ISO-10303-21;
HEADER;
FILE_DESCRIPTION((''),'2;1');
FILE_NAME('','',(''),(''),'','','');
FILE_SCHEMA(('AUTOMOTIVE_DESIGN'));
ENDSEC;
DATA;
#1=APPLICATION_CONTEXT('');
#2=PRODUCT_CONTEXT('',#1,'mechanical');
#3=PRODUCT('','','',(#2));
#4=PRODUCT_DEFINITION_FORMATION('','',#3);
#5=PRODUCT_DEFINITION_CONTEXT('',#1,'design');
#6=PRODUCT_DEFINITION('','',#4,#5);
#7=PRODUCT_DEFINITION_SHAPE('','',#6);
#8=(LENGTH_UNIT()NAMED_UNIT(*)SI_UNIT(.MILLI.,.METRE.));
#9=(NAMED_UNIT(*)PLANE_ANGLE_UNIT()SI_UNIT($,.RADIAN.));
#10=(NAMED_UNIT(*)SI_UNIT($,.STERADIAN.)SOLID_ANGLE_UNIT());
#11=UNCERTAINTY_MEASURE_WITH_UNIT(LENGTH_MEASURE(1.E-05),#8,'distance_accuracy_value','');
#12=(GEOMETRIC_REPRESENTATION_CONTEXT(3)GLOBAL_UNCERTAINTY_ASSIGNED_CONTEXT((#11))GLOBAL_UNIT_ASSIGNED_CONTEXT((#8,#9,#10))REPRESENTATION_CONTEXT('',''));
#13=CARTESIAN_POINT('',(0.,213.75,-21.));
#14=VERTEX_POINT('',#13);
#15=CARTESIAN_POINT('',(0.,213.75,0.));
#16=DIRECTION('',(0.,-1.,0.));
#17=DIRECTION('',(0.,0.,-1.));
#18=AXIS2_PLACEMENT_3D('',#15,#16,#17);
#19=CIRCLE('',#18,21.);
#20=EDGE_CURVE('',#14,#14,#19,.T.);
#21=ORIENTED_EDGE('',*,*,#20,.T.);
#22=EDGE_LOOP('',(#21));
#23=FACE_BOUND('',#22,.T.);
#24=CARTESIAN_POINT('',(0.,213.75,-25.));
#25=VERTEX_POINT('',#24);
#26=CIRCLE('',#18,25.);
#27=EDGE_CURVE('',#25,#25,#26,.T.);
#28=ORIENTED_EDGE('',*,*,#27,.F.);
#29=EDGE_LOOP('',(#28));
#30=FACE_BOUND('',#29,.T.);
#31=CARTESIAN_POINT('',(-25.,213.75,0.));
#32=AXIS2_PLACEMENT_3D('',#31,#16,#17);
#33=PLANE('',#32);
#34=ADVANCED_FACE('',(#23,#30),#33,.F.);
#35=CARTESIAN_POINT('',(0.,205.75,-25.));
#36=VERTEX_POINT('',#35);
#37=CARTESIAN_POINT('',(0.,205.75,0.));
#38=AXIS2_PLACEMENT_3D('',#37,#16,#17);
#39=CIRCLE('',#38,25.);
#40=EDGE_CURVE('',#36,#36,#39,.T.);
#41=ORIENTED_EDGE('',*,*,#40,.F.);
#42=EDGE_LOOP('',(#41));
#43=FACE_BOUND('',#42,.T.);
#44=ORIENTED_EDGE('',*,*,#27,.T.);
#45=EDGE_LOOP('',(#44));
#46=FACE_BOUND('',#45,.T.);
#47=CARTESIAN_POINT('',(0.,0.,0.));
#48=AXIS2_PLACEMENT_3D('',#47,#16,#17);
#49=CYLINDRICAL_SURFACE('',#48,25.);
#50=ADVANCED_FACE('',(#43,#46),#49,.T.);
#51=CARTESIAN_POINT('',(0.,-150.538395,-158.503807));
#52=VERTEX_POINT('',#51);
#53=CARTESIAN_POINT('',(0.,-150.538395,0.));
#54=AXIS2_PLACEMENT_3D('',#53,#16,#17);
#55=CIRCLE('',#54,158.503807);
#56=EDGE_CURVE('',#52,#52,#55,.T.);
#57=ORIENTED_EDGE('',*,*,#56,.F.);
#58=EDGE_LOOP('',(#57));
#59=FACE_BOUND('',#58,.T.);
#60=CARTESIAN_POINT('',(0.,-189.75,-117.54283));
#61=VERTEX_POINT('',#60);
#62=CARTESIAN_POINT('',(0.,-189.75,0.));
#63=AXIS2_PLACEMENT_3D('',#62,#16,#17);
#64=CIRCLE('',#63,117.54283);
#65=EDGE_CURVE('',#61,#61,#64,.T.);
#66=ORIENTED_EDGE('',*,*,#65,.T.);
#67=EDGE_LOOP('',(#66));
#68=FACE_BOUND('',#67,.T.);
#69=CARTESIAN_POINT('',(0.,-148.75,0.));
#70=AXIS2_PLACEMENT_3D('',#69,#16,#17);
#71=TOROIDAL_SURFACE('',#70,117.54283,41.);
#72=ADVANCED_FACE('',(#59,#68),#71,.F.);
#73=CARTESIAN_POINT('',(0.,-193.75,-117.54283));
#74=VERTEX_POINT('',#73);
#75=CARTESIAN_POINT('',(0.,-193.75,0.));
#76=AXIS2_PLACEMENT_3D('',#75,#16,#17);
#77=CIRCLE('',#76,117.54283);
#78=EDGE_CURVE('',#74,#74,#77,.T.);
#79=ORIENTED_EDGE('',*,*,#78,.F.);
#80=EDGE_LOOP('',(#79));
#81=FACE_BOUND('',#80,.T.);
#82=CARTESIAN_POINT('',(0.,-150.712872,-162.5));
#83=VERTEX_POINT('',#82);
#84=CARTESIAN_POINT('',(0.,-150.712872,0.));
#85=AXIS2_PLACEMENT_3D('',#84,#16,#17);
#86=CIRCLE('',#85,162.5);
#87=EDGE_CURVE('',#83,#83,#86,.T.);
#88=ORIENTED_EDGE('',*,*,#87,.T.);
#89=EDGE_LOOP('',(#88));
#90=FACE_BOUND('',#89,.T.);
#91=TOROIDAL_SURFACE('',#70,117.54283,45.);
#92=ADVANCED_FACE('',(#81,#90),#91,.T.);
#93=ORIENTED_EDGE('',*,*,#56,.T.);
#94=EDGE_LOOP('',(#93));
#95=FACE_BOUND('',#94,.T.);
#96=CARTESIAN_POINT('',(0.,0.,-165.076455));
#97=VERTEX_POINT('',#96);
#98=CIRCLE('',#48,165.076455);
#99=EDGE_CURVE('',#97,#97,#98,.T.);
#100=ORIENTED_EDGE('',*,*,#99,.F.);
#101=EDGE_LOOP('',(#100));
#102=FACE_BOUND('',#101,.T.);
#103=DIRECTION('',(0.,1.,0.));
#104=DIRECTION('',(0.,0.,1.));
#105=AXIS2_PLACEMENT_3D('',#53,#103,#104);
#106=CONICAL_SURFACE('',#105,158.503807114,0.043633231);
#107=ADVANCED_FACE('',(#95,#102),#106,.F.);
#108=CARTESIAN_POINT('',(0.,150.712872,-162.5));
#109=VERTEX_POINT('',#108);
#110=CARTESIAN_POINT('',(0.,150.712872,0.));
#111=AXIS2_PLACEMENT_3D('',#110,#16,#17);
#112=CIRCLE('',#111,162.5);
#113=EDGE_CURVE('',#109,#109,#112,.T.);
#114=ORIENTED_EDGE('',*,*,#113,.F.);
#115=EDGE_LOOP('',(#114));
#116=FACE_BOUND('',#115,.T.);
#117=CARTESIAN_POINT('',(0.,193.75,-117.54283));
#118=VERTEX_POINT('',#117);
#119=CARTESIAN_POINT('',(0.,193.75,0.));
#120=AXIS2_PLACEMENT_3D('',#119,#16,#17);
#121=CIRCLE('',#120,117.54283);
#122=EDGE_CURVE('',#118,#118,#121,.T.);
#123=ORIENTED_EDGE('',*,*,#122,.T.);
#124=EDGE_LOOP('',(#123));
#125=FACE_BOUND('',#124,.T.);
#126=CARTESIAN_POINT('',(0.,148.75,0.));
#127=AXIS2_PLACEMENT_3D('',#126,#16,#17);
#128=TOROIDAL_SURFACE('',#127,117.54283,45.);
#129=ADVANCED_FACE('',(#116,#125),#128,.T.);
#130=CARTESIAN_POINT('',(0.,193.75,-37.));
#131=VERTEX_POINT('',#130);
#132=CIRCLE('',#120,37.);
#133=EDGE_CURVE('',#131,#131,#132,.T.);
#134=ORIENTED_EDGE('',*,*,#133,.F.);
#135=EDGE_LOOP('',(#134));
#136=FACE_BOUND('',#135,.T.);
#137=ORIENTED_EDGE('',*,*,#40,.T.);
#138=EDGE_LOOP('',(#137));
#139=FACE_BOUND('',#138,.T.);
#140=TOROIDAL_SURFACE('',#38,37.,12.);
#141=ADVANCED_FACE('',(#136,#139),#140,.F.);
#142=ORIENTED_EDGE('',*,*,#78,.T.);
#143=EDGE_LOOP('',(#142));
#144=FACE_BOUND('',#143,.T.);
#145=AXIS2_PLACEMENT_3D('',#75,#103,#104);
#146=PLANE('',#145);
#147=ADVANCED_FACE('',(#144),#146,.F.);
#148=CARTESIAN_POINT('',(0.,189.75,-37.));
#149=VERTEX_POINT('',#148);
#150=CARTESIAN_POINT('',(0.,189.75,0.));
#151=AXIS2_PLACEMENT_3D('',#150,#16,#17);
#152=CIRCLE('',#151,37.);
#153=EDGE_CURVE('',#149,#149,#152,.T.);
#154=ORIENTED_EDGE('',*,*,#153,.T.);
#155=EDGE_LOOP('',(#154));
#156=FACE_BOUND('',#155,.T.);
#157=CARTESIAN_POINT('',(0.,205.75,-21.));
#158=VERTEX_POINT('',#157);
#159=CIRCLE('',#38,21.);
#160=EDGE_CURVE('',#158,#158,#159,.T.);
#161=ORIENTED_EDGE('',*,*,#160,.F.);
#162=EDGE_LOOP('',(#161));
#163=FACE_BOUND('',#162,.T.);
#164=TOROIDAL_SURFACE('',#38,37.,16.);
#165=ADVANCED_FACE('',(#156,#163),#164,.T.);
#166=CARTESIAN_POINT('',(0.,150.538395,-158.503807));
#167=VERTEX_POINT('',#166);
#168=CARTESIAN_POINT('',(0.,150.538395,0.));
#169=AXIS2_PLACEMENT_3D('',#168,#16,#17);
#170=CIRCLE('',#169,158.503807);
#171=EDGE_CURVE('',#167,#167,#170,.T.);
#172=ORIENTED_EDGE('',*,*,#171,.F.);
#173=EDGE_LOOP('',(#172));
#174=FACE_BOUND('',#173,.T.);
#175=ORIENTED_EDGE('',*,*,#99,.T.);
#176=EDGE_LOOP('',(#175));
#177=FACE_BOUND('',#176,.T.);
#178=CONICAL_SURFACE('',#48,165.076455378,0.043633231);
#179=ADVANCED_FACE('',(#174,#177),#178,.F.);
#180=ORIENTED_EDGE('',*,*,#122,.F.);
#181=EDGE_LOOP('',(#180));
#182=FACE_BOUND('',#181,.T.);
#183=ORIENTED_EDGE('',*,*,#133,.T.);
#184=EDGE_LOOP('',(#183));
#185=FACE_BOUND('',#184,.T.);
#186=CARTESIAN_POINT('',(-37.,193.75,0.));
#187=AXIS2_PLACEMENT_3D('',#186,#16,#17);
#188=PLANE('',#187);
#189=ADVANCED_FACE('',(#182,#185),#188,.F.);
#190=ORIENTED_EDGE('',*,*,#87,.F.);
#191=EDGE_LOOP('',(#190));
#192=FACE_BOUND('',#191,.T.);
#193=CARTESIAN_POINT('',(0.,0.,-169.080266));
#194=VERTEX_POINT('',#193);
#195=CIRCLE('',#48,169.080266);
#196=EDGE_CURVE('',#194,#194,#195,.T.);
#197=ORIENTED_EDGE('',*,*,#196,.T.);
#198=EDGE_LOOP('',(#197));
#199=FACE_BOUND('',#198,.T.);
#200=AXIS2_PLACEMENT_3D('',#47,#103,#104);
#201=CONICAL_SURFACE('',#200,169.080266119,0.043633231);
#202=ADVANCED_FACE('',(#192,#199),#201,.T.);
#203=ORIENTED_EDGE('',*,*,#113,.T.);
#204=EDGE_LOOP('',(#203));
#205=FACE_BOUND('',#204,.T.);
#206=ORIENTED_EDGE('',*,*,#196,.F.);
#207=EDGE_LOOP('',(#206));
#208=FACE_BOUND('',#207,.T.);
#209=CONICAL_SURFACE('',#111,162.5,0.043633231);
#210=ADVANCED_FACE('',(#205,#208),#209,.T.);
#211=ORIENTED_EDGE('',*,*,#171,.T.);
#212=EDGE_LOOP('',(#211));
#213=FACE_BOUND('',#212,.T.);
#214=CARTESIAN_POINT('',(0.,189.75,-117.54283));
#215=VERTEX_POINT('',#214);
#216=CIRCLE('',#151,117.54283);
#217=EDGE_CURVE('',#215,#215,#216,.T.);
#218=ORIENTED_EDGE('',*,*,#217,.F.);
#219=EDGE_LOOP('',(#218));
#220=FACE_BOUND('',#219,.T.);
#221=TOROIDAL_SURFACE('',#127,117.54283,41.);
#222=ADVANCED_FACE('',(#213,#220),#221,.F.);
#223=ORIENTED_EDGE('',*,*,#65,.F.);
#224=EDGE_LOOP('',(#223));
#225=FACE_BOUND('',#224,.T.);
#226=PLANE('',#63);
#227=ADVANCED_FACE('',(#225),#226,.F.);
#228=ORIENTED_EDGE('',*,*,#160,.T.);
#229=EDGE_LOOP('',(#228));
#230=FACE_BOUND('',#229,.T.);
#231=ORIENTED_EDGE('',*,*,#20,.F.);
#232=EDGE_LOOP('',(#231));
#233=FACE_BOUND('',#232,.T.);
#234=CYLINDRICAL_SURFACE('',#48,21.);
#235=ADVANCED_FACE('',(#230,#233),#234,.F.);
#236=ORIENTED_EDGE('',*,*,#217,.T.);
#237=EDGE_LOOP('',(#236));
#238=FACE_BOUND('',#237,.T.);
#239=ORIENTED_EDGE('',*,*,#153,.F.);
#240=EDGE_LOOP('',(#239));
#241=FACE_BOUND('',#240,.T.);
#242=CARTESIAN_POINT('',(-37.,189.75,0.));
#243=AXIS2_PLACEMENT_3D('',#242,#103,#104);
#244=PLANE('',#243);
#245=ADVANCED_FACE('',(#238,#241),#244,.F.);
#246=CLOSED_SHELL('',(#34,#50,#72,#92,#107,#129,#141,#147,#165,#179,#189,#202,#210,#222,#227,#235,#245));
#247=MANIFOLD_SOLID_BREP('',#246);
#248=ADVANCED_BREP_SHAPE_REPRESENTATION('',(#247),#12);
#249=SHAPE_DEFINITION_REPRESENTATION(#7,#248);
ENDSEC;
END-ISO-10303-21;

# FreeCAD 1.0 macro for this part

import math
import FreeCAD as App
import Part
import Sketcher
Q = App.Units.Quantity

doc = App.newDocument("Part")
params = doc.addObject("Spreadsheet::Sheet", "Params")
for row, (alias, value) in enumerate([
    ("sketch1_radius", "41 mm"),
    ("sketch1_radius2", "16 mm"),
    ("sketch1_radius3", "12 mm"),
    ("sketch1_height", "8 mm"),
    ("revolution_angle", "360 deg"),
], start=1):
    params.set(f"A{row}", alias)
    params.set(f"B{row}", "=" + value)
    params.setAlias(f"B{row}", alias)

body = doc.addObject("PartDesign::Body", "Body")

# Sketch on XY plane
sketch1 = body.newObject("Sketcher::SketchObject", "Sketch")
sketch1.AttachmentSupport = (doc.getObject("XY_Plane"), [""])
sketch1.MapMode = "FlatFace"
sketch1.addGeometry([
    Part.LineSegment(App.Vector(-117.5, -193.8, 0), App.Vector(0, -193.8, 0)),  # 0
    Part.LineSegment(App.Vector(0, -193.8, 0), App.Vector(0, -189.8, 0)),  # 1
    Part.LineSegment(App.Vector(0, -189.8, 0), App.Vector(-117.5, -189.8, 0)),  # 2
    Part.ArcOfCircle(Part.Circle(App.Vector(-117.5, -148.7, 0), App.Vector(0, 0, 1), 41), math.radians(-177), math.radians(-90)),  # 3
    Part.LineSegment(App.Vector(-158.5, -150.5, 0), App.Vector(-165.1, 0, 0)),  # 4
    Part.LineSegment(App.Vector(-165.1, 0, 0), App.Vector(-158.5, 150.5, 0)),  # 5
    Part.ArcOfCircle(Part.Circle(App.Vector(-117.5, 148.7, 0), App.Vector(0, 0, 1), 41), math.radians(90), math.radians(177)),  # 6
    Part.LineSegment(App.Vector(-117.5, 189.8, 0), App.Vector(-37, 189.8, 0)),  # 7
    Part.ArcOfCircle(Part.Circle(App.Vector(-37, 205.8, 0), App.Vector(0, 0, 1), 16), math.radians(-90), math.radians(0)),  # 8
    Part.LineSegment(App.Vector(-21, 205.8, 0), App.Vector(-21, 213.8, 0)),  # 9
    Part.LineSegment(App.Vector(-21, 213.8, 0), App.Vector(-25, 213.8, 0)),  # 10
    Part.LineSegment(App.Vector(-25, 213.8, 0), App.Vector(-25, 205.8, 0)),  # 11
    Part.ArcOfCircle(Part.Circle(App.Vector(-37, 205.8, 0), App.Vector(0, 0, 1), 12), math.radians(-90), math.radians(0)),  # 12
    Part.LineSegment(App.Vector(-37, 193.8, 0), App.Vector(-117.5, 193.8, 0)),  # 13
    Part.ArcOfCircle(Part.Circle(App.Vector(-117.5, 148.8, 0), App.Vector(0, 0, 1), 45), math.radians(90), math.radians(178)),  # 14
    Part.LineSegment(App.Vector(-162.5, 150.7, 0), App.Vector(-169.1, 0, 0)),  # 15
    Part.LineSegment(App.Vector(-169.1, 0, 0), App.Vector(-162.5, -150.7, 0)),  # 16
    Part.ArcOfCircle(Part.Circle(App.Vector(-117.5, -148.8, 0), App.Vector(0, 0, 1), 45), math.radians(-178), math.radians(-90)),  # 17
], False)
sketch1.addConstraint([
    Sketcher.Constraint("Coincident", 0, 2, 1, 1),
    Sketcher.Constraint("Coincident", 1, 2, 2, 1),
    Sketcher.Constraint("Tangent", 2, 2, 3, 2),
    Sketcher.Constraint("Tangent", 3, 1, 4, 1),
    Sketcher.Constraint("Coincident", 4, 2, 5, 1),
    Sketcher.Constraint("Tangent", 5, 2, 6, 2),
    Sketcher.Constraint("Tangent", 6, 1, 7, 1),
    Sketcher.Constraint("Tangent", 7, 2, 8, 1),
    Sketcher.Constraint("Tangent", 8, 2, 9, 1),
    Sketcher.Constraint("Coincident", 9, 2, 10, 1),
    Sketcher.Constraint("Coincident", 10, 2, 11, 1),
    Sketcher.Constraint("Tangent", 11, 2, 12, 2),
    Sketcher.Constraint("Tangent", 12, 1, 13, 1),
    Sketcher.Constraint("Tangent", 13, 2, 14, 1),
    Sketcher.Constraint("Tangent", 14, 2, 15, 1),
    Sketcher.Constraint("Coincident", 15, 2, 16, 1),
    Sketcher.Constraint("Tangent", 16, 2, 17, 1),
    Sketcher.Constraint("Tangent", 17, 2, 0, 1),
    Sketcher.Constraint("Horizontal", 0),
    Sketcher.Constraint("Vertical", 1),
    Sketcher.Constraint("Horizontal", 2),
    Sketcher.Constraint("Horizontal", 7),
    Sketcher.Constraint("Vertical", 9),
    Sketcher.Constraint("Horizontal", 10),
    Sketcher.Constraint("Vertical", 11),
    Sketcher.Constraint("Horizontal", 13),
    Sketcher.Constraint("Coincident", 12, 3, 8, 3),
    Sketcher.Constraint("Coincident", 14, 3, 6, 3),
    Sketcher.Constraint("Coincident", 17, 3, 3, 3),
    Sketcher.Constraint("Equal", 3, 6),
    Sketcher.Constraint("Equal", 14, 17),
    Sketcher.Constraint("Symmetric", 3, 3, 6, 3, -1),
    Sketcher.Constraint("PointOnObject", 0, 2, -2),
    Sketcher.Constraint("PointOnObject", 4, 2, -1),
    Sketcher.Constraint("PointOnObject", 15, 2, -1),
    Sketcher.Constraint("Parallel", 5, 15),
    Sketcher.Constraint("Radius", 3, 41.0),
    Sketcher.Constraint("Radius", 8, 16.0),
    Sketcher.Constraint("Radius", 12, 12.0),
    Sketcher.Constraint("DistanceY", 9, 1, 9, 2, 8.0),
    Sketcher.Constraint("DistanceX", 8, 3, -1, 1, 37.0),
    Sketcher.Constraint("Angle", 4, Q("92.5 deg")),
    Sketcher.Constraint("DistanceX", 14, 2, -1, 1, 162.5),
    Sketcher.Constraint("DistanceY", 3, 3, 6, 3, 297.5),
])
sketch1.setExpression("Constraints[36]", "Params.sketch1_radius")
sketch1.setExpression("Constraints[37]", "Params.sketch1_radius2")
sketch1.setExpression("Constraints[38]", "Params.sketch1_radius3")
sketch1.setExpression("Constraints[39]", "Params.sketch1_height")
revolution = body.newObject("PartDesign::Revolution", "Revolution")
revolution.Profile = sketch1
revolution.ReferenceAxis = (sketch1, ["V_Axis"])
revolution.setExpression("Angle", "Params.revolution_angle")

doc.recompute()
